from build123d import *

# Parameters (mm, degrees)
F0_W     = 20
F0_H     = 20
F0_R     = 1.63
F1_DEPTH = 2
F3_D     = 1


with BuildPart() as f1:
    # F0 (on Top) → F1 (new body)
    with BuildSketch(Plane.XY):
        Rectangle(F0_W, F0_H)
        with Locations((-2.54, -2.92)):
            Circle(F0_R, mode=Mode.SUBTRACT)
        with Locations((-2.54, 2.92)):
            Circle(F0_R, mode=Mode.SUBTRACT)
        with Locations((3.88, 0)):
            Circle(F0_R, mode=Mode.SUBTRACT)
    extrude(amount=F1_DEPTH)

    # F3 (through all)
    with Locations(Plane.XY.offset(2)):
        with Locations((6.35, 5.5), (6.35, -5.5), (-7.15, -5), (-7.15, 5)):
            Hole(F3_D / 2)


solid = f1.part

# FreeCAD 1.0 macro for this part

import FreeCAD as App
import Part
import Sketcher

V = App.Vector


def add_polygon(sketch, points):
    """Adds a closed chain of lines whose ends are joined by coincident constraints."""
    first, n = sketch.GeometryCount, len(points)
    for a, b in zip(points, points[1:] + points[:1]):
        sketch.addGeometry(Part.LineSegment(App.Vector(*a, 0), App.Vector(*b, 0)), False)
    for i in range(n):
        sketch.addConstraint(Sketcher.Constraint("Coincident", first + i, 2, first + (i + 1) % n, 1))

doc = App.newDocument("Part")
params = doc.addObject("Spreadsheet::Sheet", "Params")
for row, (alias, value) in enumerate([
    ("sketch1_diameter", "3.26 mm"),
    ("sketch1_width", "20 mm"),
    ("pad1_length", "2 mm"),
    ("sketch2_diameter", "1 mm"),
    ("hole_diameter", "1 mm"),
], start=1):
    params.set(f"A{row}", alias)
    params.set(f"B{row}", "=" + value)
    params.setAlias(f"B{row}", alias)

body = doc.addObject("PartDesign::Body", "Body")

# Sketch on XY plane
sketch1 = doc.addObject("Sketcher::SketchObject", "Sketch")
body.addObject(sketch1)
sketch1.AttachmentSupport = (doc.XY_Plane, [""])
sketch1.MapMode = "FlatFace"
add_polygon(sketch1, [(-10, 10), (-10, -10), (10, -10), (10, 10)])  # lines 0-3
sketch1.addGeometry(Part.Circle(V(-2.54, -2.92, 0), V(0, 0, 1), 1.63), False)  # 4
sketch1.addGeometry(Part.Circle(V(3.88, 0, 0), V(0, 0, 1), 1.63), False)  # 5
sketch1.addGeometry(Part.Circle(V(-2.54, 2.92, 0), V(0, 0, 1), 1.63), False)  # 6
sketch1.addConstraint([
    Sketcher.Constraint("Vertical", 0),
    Sketcher.Constraint("Horizontal", 1),
    Sketcher.Constraint("Vertical", 2),
    Sketcher.Constraint("Horizontal", 3),
    Sketcher.Constraint("Equal", 4, 5),
    Sketcher.Constraint("Equal", 5, 6),
    Sketcher.Constraint("Symmetric", 0, 2, 2, 2, -1, 1),
    Sketcher.Constraint("Symmetric", 4, 3, 6, 3, -1),
    Sketcher.Constraint("PointOnObject", 5, 3, -1),
    Sketcher.Constraint("Equal", 3, 0),
    Sketcher.Constraint("Diameter", 4, 3.26),
    Sketcher.Constraint("DistanceX", 1, 1, 1, 2, 20.0),
    Sketcher.Constraint("DistanceX", 4, 3, -1, 1, 2.54),
    Sketcher.Constraint("DistanceY", 4, 3, -1, 1, 2.92),
    Sketcher.Constraint("DistanceX", -1, 1, 5, 3, 3.88),
])
sketch1.setExpression("Constraints[14]", "Params.sketch1_diameter")
sketch1.setExpression("Constraints[15]", "Params.sketch1_width")
pad1 = doc.addObject("PartDesign::Pad", "Pad")
body.addObject(pad1)
pad1.Profile = sketch1
pad1.setExpression("Length", "Params.pad1_length")

# Sketch on XY plane
sketch2 = doc.addObject("Sketcher::SketchObject", "Sketch001")
body.addObject(sketch2)
sketch2.AttachmentSupport = (doc.XY_Plane, [""])
sketch2.MapMode = "FlatFace"
sketch2.AttachmentOffset = App.Placement(V(0, 0, 2), App.Rotation())
sketch2.addGeometry([
    Part.Circle(V(6.35, 5.5, 0), V(0, 0, 1), 0.5),
    Part.Circle(V(6.35, -5.5, 0), V(0, 0, 1), 0.5),
    Part.Circle(V(-7.15, -5, 0), V(0, 0, 1), 0.5),
    Part.Circle(V(-7.15, 5, 0), V(0, 0, 1), 0.5),
], False)
sketch2.addConstraint([
    Sketcher.Constraint("Equal", 0, 1),
    Sketcher.Constraint("Equal", 1, 2),
    Sketcher.Constraint("Equal", 2, 3),
    Sketcher.Constraint("Symmetric", 0, 3, 1, 3, -1),
    Sketcher.Constraint("Symmetric", 2, 3, 3, 3, -1),
    Sketcher.Constraint("Diameter", 0, 1.0),
    Sketcher.Constraint("DistanceY", 2, 3, -1, 1, 5.0),
    Sketcher.Constraint("DistanceY", 1, 3, 0, 3, 11.0),
    Sketcher.Constraint("DistanceX", 2, 3, 1, 3, 13.5),
    Sketcher.Constraint("DistanceX", -1, 1, 0, 3, 6.35),
])
sketch2.setExpression("Constraints[5]", "Params.sketch2_diameter")
doc.recompute()
hole = doc.addObject("PartDesign::Hole", "Hole")
body.addObject(hole)
hole.Profile = sketch2
hole.ThreadType = "None"
hole.setExpression("Diameter", "Params.hole_diameter")
hole.DepthType = "ThroughAll"

doc.recompute()
